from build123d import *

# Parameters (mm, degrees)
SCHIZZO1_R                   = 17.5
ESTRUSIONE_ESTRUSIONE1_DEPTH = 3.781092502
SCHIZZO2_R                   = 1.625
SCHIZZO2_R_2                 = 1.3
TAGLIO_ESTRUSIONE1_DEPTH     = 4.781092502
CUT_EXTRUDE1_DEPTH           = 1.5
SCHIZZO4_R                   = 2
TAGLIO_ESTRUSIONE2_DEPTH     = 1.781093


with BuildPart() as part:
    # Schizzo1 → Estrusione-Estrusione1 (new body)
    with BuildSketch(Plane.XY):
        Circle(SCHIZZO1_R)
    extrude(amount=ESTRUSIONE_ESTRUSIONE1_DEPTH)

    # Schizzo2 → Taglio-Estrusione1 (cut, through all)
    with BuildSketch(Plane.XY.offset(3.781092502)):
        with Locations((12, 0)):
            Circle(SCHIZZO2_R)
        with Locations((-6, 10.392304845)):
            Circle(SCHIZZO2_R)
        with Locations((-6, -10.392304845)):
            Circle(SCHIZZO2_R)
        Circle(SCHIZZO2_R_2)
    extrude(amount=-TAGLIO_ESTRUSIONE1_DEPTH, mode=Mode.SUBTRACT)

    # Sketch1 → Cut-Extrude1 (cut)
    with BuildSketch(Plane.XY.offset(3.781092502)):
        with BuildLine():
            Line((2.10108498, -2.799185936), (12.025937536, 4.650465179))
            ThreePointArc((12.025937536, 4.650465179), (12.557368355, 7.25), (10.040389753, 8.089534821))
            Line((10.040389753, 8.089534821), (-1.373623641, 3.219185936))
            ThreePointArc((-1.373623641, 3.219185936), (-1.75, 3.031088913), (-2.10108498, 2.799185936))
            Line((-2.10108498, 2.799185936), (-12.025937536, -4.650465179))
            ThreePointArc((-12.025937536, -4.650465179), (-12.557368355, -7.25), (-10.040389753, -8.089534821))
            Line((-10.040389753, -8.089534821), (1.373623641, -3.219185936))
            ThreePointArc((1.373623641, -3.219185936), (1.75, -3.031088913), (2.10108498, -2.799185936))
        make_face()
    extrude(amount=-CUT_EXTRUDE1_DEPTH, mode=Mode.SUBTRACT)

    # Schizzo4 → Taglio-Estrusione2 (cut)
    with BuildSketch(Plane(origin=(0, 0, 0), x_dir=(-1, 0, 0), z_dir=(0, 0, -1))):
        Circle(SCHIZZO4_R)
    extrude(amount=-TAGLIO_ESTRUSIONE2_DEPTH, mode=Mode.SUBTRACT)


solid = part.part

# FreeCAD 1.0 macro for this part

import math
import FreeCAD as App
import Part
import Sketcher
Q = App.Units.Quantity

doc = App.newDocument("Part")
params = doc.addObject("Spreadsheet::Sheet", "Params")
for row, (alias, value) in enumerate([
    ("sketch1_diameter", "35 mm"),
    ("pad1_length", "3.781093 mm"),
    ("sketch2_diameter", "2.6 mm"),
    ("sketch2_diameter2", "3.25 mm"),
    ("sketch3_radius", "2 mm"),
    ("sketch3_radius2", "3.5 mm"),
    ("pocket2_length", "1.5 mm"),
    ("sketch4_diameter", "4 mm"),
    ("pocket3_length", "1.781093 mm"),
], start=1):
    params.set(f"A{row}", alias)
    params.set(f"B{row}", "=" + value)
    params.setAlias(f"B{row}", alias)

body = doc.addObject("PartDesign::Body", "Body")

# Sketch on XY plane
sketch1 = doc.addObject("Sketcher::SketchObject", "Sketch")
body.addObject(sketch1)
sketch1.AttachmentSupport = (doc.XY_Plane, [""])
sketch1.MapMode = "FlatFace"
sketch1.addGeometry(Part.Circle(App.Vector(0, 0, 0), App.Vector(0, 0, 1), 18), False)
sketch1.addConstraint(Sketcher.Constraint("Coincident", 0, 3, -1, 1))
sketch1.addConstraint(Sketcher.Constraint("Diameter", 0, Q("35 mm")))
sketch1.setExpression("Constraints[1]", "Params.sketch1_diameter")
pad1 = doc.addObject("PartDesign::Pad", "Pad")
body.addObject(pad1)
pad1.Profile = sketch1
pad1.setExpression("Length", "Params.pad1_length")

# Sketch on XY plane
sketch2 = doc.addObject("Sketcher::SketchObject", "Sketch001")
body.addObject(sketch2)
sketch2.AttachmentSupport = (doc.XY_Plane, [""])
sketch2.MapMode = "FlatFace"
sketch2.AttachmentOffset = App.Placement(App.Vector(0, 0, 3.781093), App.Rotation())
sketch2.addGeometry(Part.Circle(App.Vector(12, 0, 0), App.Vector(0, 0, 1), 1.6), False)
sketch2.addGeometry(Part.Circle(App.Vector(-6, 10.4, 0), App.Vector(0, 0, 1), 1.6), False)
sketch2.addGeometry(Part.Circle(App.Vector(-6, -10.4, 0), App.Vector(0, 0, 1), 1.6), False)
sketch2.addGeometry(Part.Circle(App.Vector(0, 0, 0), App.Vector(0, 0, 1), 1.3), False)
sketch2.addConstraint(Sketcher.Constraint("Coincident", 3, 3, -1, 1))
sketch2.addConstraint(Sketcher.Constraint("Equal", 0, 1))
sketch2.addConstraint(Sketcher.Constraint("Equal", 1, 2))
sketch2.addConstraint(Sketcher.Constraint("Symmetric", 1, 3, 2, 3, -1))
sketch2.addConstraint(Sketcher.Constraint("PointOnObject", 0, 3, -1))
sketch2.addConstraint(Sketcher.Constraint("Diameter", 3, Q("2.6 mm")))
sketch2.addConstraint(Sketcher.Constraint("Diameter", 0, Q("3.25 mm")))
sketch2.addConstraint(Sketcher.Constraint("DistanceX", -1, 1, 0, 3, Q("12 mm")))
sketch2.addConstraint(Sketcher.Constraint("DistanceX", 1, 3, -1, 1, Q("6 mm")))
sketch2.addConstraint(Sketcher.Constraint("DistanceY", 2, 3, 1, 3, Q("20.78461 mm")))
sketch2.setExpression("Constraints[5]", "Params.sketch2_diameter")
sketch2.setExpression("Constraints[6]", "Params.sketch2_diameter2")
pocket1 = doc.addObject("PartDesign::Pocket", "Pocket")
body.addObject(pocket1)
pocket1.Profile = sketch2
pocket1.Type = "ThroughAll"

# Sketch on XY plane
sketch3 = doc.addObject("Sketcher::SketchObject", "Sketch002")
body.addObject(sketch3)
sketch3.AttachmentSupport = (doc.XY_Plane, [""])
sketch3.MapMode = "FlatFace"
sketch3.AttachmentOffset = App.Placement(App.Vector(0, 0, 3.781093), App.Rotation())
sketch3.addGeometry(Part.LineSegment(App.Vector(2.1, -2.8, 0), App.Vector(12, 4.7, 0)), False)
sketch3.addGeometry(Part.ArcOfCircle(Part.Circle(App.Vector(10.8, 6.2, 0), App.Vector(0, 0, 1), 2), math.radians(-53), math.radians(113)), False)
sketch3.addGeometry(Part.LineSegment(App.Vector(10, 8.1, 0), App.Vector(-1.4, 3.2, 0)), False)
sketch3.addGeometry(Part.ArcOfCircle(Part.Circle(App.Vector(0, 0, 0), App.Vector(0, 0, 1), 3.5), math.radians(113.11), math.radians(126.89)), False)
sketch3.addGeometry(Part.LineSegment(App.Vector(-2.1, 2.8, 0), App.Vector(-12, -4.7, 0)), False)
sketch3.addGeometry(Part.ArcOfCircle(Part.Circle(App.Vector(-10.8, -6.2, 0), App.Vector(0, 0, 1), 2), math.radians(127), math.radians(293)), False)
sketch3.addGeometry(Part.LineSegment(App.Vector(-10, -8.1, 0), App.Vector(1.4, -3.2, 0)), False)
sketch3.addGeometry(Part.ArcOfCircle(Part.Circle(App.Vector(0, 0, 0), App.Vector(0, 0, 1), 3.5), math.radians(-66.89), math.radians(-53.11)), False)
sketch3.addConstraint(Sketcher.Constraint("Tangent", 0, 2, 1, 1))
sketch3.addConstraint(Sketcher.Constraint("Tangent", 1, 2, 2, 1))
sketch3.addConstraint(Sketcher.Constraint("Tangent", 2, 2, 3, 1))
sketch3.addConstraint(Sketcher.Constraint("Tangent", 3, 2, 4, 1))
sketch3.addConstraint(Sketcher.Constraint("Tangent", 4, 2, 5, 1))
sketch3.addConstraint(Sketcher.Constraint("Tangent", 5, 2, 6, 1))
sketch3.addConstraint(Sketcher.Constraint("Tangent", 6, 2, 7, 1))
sketch3.addConstraint(Sketcher.Constraint("Tangent", 7, 2, 0, 1))
sketch3.addConstraint(Sketcher.Constraint("Coincident", 3, 3, -1, 1))
sketch3.addConstraint(Sketcher.Constraint("Coincident", 7, 3, -1, 1))
sketch3.addConstraint(Sketcher.Constraint("Equal", 1, 5))
sketch3.addConstraint(Sketcher.Constraint("Equal", 3, 7))
sketch3.addConstraint(Sketcher.Constraint("Symmetric", 1, 3, 5, 3, -1, 1))
sketch3.addConstraint(Sketcher.Constraint("Radius", 1, Q("2 mm")))
sketch3.addConstraint(Sketcher.Constraint("Radius", 3, Q("3.5 mm")))
sketch3.addConstraint(Sketcher.Constraint("DistanceY", 5, 3, 1, 3, Q("12.5 mm")))
sketch3.addConstraint(Sketcher.Constraint("DistanceY", 3, 2, 2, 2, Q("0.42 mm")))
sketch3.setExpression("Constraints[13]", "Params.sketch3_radius")
sketch3.setExpression("Constraints[14]", "Params.sketch3_radius2")
pocket2 = doc.addObject("PartDesign::Pocket", "Pocket001")
body.addObject(pocket2)
pocket2.Profile = sketch3
pocket2.setExpression("Length", "Params.pocket2_length")

# Sketch on XY plane
sketch4 = doc.addObject("Sketcher::SketchObject", "Sketch003")
body.addObject(sketch4)
sketch4.AttachmentSupport = (doc.XY_Plane, [""])
sketch4.MapMode = "FlatFace"
sketch4.addGeometry(Part.Circle(App.Vector(0, 0, 0), App.Vector(0, 0, 1), 2), False)
sketch4.addConstraint(Sketcher.Constraint("Coincident", 0, 3, -1, 1))
sketch4.addConstraint(Sketcher.Constraint("Diameter", 0, Q("4 mm")))
sketch4.setExpression("Constraints[1]", "Params.sketch4_diameter")
pocket3 = doc.addObject("PartDesign::Pocket", "Pocket002")
body.addObject(pocket3)
pocket3.Profile = sketch4
pocket3.setExpression("Length", "Params.pocket3_length")
pocket3.Reversed = True

doc.recompute()
